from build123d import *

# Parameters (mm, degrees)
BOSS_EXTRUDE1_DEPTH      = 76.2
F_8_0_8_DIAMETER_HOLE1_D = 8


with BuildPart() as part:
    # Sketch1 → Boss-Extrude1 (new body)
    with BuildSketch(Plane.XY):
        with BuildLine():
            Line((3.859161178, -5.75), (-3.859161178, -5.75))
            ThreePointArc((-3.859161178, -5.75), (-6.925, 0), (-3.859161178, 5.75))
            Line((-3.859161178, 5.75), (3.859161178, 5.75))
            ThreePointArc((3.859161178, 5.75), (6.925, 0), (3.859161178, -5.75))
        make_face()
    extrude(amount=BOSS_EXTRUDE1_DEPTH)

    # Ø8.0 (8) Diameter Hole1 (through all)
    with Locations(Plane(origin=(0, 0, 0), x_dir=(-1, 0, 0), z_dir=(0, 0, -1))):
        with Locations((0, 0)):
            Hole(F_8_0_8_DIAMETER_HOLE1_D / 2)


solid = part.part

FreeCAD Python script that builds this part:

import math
import FreeCAD as App
import Part
import Sketcher
from FreeCAD import Vector

doc = App.newDocument("Part")
body = doc.addObject("PartDesign::Body", "Body")

# Sketch on XY plane
sketch1 = body.newObject("Sketcher::SketchObject", "Sketch")
sketch1.AttachmentSupport = (doc.getObject("XY_Plane"), [""])
sketch1.MapMode = "FlatFace"
sketch1.addGeometry(Part.LineSegment(Vector(-4, -6, 0), Vector(4, -6, 0)), False)
sketch1.addGeometry(Part.ArcOfCircle(Part.Circle(Vector(0, 0, 0), Vector(0, 0, 1), 7), math.radians(-56), math.radians(56)), False)
sketch1.addGeometry(Part.LineSegment(Vector(4, 6, 0), Vector(-4, 6, 0)), False)
sketch1.addGeometry(Part.ArcOfCircle(Part.Circle(Vector(0, 0, 0), Vector(0, 0, 1), 7), math.radians(124), math.radians(236)), False)
sketch1.addConstraint(Sketcher.Constraint("Coincident", 0, 2, 1, 1))
sketch1.addConstraint(Sketcher.Constraint("Coincident", 1, 2, 2, 1))
sketch1.addConstraint(Sketcher.Constraint("Coincident", 2, 2, 3, 1))
sketch1.addConstraint(Sketcher.Constraint("Coincident", 3, 2, 0, 1))
sketch1.addConstraint(Sketcher.Constraint("Horizontal", 0))
sketch1.addConstraint(Sketcher.Constraint("Horizontal", 2))
sketch1.addConstraint(Sketcher.Constraint("Coincident", 1, 3, -1, 1))
sketch1.addConstraint(Sketcher.Constraint("Coincident", 3, 3, -1, 1))
sketch1.addConstraint(Sketcher.Constraint("Equal", 1, 3))
sketch1.addConstraint(Sketcher.Constraint("Vertical", 0, 2, 1, 2))
sketch1.addConstraint(Sketcher.Constraint("Radius", 1, 6.925))
sketch1.addConstraint(Sketcher.Constraint("DistanceY", 0, 2, 1, 2, 11.5))
pad1 = body.newObject("PartDesign::Pad", "Pad")
pad1.Profile = sketch1
pad1.Length = 76.2

# Sketch on XY plane
sketch2 = body.newObject("Sketcher::SketchObject", "Sketch001")
sketch2.AttachmentSupport = (doc.getObject("XY_Plane"), [""])
sketch2.MapMode = "FlatFace"
sketch2.addGeometry(Part.Circle(Vector(0, 0, 0), Vector(0, 0, 1), 4), False)
sketch2.addConstraint(Sketcher.Constraint("Coincident", 0, 3, -1, 1))
sketch2.addConstraint(Sketcher.Constraint("Diameter", 0, 8.0))
doc.recompute()
hole = body.newObject("PartDesign::Hole", "Hole")
hole.Profile = sketch2
hole.ThreadType = "None"
hole.Diameter = 8
hole.DepthType = "ThroughAll"
hole.Reversed = True

doc.recompute()
